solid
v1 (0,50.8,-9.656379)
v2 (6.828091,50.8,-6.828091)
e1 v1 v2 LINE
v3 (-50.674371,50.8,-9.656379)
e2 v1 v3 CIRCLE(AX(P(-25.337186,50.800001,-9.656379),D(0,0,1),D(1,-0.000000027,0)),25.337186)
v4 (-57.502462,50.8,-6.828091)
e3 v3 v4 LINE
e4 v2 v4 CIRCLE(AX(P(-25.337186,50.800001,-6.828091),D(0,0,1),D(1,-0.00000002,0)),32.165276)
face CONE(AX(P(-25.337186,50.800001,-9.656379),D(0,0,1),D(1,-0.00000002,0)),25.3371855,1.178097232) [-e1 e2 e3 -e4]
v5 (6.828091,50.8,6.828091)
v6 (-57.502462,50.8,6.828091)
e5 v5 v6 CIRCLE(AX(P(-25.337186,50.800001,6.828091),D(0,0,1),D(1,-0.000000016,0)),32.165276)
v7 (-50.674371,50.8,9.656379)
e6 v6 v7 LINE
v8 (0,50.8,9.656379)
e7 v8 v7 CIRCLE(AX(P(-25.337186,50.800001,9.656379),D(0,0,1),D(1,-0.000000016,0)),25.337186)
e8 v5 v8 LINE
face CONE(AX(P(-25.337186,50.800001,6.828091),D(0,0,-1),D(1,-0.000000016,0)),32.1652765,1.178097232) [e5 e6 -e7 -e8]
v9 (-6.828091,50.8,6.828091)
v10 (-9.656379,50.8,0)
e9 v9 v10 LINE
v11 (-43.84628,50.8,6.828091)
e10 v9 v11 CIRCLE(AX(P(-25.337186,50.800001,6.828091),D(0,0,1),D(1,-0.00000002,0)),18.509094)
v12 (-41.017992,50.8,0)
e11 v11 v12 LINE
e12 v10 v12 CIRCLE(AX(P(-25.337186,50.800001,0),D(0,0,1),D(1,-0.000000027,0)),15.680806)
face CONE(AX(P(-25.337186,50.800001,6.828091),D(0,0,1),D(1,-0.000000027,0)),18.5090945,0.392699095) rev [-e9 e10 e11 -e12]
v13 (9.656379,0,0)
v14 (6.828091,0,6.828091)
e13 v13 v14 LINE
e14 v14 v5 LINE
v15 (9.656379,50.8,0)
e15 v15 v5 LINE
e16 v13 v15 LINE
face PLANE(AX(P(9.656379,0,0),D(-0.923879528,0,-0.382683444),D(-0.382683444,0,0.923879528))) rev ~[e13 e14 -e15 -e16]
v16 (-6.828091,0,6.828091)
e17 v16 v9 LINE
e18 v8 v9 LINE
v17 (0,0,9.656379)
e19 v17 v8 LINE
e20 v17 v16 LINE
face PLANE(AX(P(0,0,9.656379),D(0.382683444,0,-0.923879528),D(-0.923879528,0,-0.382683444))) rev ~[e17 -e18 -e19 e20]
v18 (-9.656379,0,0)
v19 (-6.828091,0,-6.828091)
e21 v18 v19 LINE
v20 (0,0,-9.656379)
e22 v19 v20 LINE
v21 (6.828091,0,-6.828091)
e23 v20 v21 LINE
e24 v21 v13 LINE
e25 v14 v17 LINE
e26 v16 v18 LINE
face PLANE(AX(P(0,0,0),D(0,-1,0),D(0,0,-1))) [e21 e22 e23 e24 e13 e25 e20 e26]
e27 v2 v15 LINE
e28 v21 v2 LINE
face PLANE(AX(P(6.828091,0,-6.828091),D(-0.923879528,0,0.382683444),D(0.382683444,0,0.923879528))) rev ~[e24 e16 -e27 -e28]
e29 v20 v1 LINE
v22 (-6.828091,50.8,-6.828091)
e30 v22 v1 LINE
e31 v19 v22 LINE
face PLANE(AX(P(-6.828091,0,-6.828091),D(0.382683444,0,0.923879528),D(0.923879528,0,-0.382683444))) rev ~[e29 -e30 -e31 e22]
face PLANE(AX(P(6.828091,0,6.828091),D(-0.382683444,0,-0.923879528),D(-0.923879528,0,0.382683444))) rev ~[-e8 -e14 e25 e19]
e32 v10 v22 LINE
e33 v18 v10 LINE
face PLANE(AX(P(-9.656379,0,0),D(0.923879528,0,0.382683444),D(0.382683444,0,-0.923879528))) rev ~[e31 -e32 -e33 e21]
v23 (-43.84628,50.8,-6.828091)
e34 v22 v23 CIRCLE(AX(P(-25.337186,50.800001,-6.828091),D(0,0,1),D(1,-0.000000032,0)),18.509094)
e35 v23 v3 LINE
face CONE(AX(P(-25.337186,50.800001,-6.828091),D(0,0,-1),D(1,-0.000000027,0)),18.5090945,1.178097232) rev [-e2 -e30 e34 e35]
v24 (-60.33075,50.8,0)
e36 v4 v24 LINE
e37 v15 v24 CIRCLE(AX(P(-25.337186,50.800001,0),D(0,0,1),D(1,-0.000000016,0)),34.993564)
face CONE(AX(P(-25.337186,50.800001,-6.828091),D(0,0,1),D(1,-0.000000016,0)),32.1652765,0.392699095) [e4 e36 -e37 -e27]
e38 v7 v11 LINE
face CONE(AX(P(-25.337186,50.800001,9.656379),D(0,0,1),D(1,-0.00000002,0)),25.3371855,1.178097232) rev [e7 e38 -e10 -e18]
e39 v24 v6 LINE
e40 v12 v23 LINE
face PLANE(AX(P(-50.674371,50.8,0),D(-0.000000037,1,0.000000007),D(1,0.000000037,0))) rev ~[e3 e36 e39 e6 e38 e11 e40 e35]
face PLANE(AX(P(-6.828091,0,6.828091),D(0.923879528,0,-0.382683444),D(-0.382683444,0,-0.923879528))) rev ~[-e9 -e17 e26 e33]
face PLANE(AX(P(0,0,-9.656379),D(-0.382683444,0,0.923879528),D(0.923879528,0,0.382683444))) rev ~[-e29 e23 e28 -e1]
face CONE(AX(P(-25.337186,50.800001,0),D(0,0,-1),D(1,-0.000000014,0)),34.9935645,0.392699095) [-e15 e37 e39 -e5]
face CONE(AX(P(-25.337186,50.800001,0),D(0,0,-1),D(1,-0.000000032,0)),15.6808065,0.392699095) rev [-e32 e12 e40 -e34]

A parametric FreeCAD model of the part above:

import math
import FreeCAD as App
import Part
import Sketcher
from FreeCAD import Vector
Q = App.Units.Quantity


def add_polygon(sketch, points):
    """Adds a closed chain of lines whose ends are joined by coincident constraints."""
    first, n = sketch.GeometryCount, len(points)
    for a, b in zip(points, points[1:] + points[:1]):
        sketch.addGeometry(Part.LineSegment(App.Vector(*a, 0), App.Vector(*b, 0)), False)
    for i in range(n):
        sketch.addConstraint(Sketcher.Constraint("Coincident", first + i, 2, first + (i + 1) % n, 1))

doc = App.newDocument("Part")
params = doc.addObject("Spreadsheet::Sheet", "Params")
for row, (alias, value) in enumerate([
    ("sketch2_height", "2 in"),
], start=1):
    params.set(f"A{row}", alias)
    params.set(f"B{row}", "=" + value)
    params.setAlias(f"B{row}", alias)

body = doc.addObject("PartDesign::Body", "Body")

# Sketch on XZ plane
sketch1 = doc.addObject("Sketcher::SketchObject", "Sketch")
body.addObject(sketch1)
sketch1.AttachmentSupport = (doc.XZ_Plane, [""])
sketch1.MapMode = "FlatFace"
add_polygon(sketch1, [(7, 7), (0, 10), (-7, 7), (-10, 0), (-7, -7), (0, -10), (7, -7), (10, 0)])  # lines 0-7
sketch1.addConstraint([
    Sketcher.Constraint("Symmetric", 0, 2, 4, 2, -1, 1),
    Sketcher.Constraint("Symmetric", 1, 2, 5, 2, -1, 1),
    Sketcher.Constraint("Symmetric", 2, 2, 6, 2, -1, 1),
    Sketcher.Constraint("Symmetric", 3, 2, 7, 2, -1, 1),
    Sketcher.Constraint("Symmetric", 3, 2, 5, 2, -2),
    Sketcher.Constraint("PointOnObject", 0, 2, -2),
    Sketcher.Constraint("PointOnObject", 2, 2, -1),
    Sketcher.Constraint("Perpendicular", 0, 2),
    Sketcher.Constraint("Equal", 1, 2),
    Sketcher.Constraint("Angle", 0, Q("157.499999 deg")),
    Sketcher.Constraint("DistanceY", -1, 1, 0, 2, 9.656379),
])

# Sketch on XY plane
sketch2 = doc.addObject("Sketcher::SketchObject", "Sketch001")
body.addObject(sketch2)
sketch2.AttachmentSupport = (doc.XY_Plane, [""])
sketch2.MapMode = "FlatFace"
sketch2.addGeometry([
    Part.LineSegment(Vector(0, 0, 0), Vector(0, 51, 0)),
    Part.ArcOfCircle(Part.Circle(Vector(-25, 51, 0), Vector(0, 0, 1), 25), math.radians(0), math.radians(180)),
], False)
sketch2.addConstraint([
    Sketcher.Constraint("Tangent", 0, 2, 1, 1),
    Sketcher.Constraint("Vertical", 0),
    Sketcher.Constraint("Coincident", 0, 1, -1, 1),
    Sketcher.Constraint("Horizontal", 0, 2, 1, 2),
    Sketcher.Constraint("DistanceY", 0, 1, 0, 2, Q("2 in")),
    Sketcher.Constraint("Radius", 1, 25.337186),
])
sketch2.setExpression("Constraints[4]", "Params.sketch2_height")
doc.recompute()

additivepipe = doc.addObject("PartDesign::AdditivePipe", "AdditivePipe")
body.addObject(additivepipe)
additivepipe.Profile = sketch1
additivepipe.Spine = (sketch2, ["Edge1", "Edge2"])

doc.recompute()
